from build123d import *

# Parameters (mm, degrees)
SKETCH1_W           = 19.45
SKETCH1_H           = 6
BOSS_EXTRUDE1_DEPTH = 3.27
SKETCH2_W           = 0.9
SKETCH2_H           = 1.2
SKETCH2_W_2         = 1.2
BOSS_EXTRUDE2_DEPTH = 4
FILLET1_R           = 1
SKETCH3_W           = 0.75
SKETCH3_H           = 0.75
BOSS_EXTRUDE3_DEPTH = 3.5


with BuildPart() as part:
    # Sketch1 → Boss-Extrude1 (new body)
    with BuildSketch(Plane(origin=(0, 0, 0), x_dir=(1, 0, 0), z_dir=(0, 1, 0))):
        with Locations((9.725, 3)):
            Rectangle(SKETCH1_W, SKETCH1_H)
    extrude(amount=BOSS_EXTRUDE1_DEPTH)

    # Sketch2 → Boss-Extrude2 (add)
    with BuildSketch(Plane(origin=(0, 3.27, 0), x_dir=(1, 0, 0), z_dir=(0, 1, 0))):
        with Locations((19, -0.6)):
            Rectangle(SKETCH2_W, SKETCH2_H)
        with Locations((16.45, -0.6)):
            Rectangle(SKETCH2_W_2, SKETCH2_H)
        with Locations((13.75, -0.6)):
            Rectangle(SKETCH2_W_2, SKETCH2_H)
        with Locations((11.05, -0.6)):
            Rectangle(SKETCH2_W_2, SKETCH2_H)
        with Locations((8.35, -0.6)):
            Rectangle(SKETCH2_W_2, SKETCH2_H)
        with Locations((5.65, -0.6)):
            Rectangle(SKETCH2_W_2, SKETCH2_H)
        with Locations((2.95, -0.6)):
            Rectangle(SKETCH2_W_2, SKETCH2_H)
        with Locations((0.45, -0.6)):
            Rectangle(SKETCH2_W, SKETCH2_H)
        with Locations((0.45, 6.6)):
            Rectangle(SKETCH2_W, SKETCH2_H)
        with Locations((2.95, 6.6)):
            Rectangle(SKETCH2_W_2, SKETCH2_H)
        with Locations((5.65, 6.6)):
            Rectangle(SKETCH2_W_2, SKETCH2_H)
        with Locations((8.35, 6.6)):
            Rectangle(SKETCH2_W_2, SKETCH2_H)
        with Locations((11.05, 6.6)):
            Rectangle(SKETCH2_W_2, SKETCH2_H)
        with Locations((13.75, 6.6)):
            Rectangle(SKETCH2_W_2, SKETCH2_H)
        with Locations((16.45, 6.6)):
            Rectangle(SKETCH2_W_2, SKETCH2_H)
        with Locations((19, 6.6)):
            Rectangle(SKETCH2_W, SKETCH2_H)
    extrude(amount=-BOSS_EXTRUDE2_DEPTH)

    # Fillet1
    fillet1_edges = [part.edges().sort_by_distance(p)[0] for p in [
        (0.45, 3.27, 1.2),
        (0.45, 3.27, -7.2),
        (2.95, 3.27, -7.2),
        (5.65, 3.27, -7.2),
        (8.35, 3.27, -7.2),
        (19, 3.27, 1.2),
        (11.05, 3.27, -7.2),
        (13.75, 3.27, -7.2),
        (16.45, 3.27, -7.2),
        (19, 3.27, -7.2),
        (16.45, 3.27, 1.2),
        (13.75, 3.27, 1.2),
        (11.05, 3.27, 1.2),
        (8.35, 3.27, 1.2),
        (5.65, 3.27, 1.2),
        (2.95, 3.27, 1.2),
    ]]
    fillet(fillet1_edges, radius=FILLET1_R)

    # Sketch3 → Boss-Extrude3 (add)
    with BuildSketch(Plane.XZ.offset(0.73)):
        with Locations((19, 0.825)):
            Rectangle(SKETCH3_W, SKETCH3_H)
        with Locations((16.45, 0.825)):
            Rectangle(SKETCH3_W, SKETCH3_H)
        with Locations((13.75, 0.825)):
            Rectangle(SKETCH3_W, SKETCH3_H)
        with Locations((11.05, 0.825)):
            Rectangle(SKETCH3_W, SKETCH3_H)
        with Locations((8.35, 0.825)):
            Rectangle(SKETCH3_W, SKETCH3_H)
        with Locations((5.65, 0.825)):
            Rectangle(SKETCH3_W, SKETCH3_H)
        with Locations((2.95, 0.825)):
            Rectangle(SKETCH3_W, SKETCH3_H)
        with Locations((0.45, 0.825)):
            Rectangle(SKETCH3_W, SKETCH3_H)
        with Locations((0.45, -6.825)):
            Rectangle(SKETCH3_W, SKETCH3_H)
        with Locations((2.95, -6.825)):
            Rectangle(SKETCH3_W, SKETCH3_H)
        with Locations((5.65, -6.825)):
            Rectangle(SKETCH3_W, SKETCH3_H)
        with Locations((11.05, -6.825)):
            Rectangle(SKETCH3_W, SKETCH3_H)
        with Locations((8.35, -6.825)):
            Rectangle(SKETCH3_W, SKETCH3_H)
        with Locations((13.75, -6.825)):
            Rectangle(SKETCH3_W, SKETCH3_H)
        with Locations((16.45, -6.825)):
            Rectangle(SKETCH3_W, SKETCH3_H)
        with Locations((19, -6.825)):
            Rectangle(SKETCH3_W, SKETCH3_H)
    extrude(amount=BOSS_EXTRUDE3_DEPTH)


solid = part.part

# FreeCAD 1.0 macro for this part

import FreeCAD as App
import Part
import Sketcher

V = App.Vector
Q = App.Units.Quantity


def edges_at(feature, points):
    """Names of the edges that pass closest to the given points."""
    edges = feature.Shape.Edges
    near = lambda p: min(range(len(edges)), key=lambda i: edges[i].distToShape(Part.Vertex(*p))[0])
    return sorted({f"Edge{near(p) + 1}" for p in points})

doc = App.newDocument("Part")
body = doc.addObject("PartDesign::Body", "Body")

# Sketch on XZ plane
sketch1 = doc.addObject("Sketcher::SketchObject", "Sketch")
body.addObject(sketch1)
sketch1.AttachmentSupport = (doc.XZ_Plane, [""])
sketch1.MapMode = "FlatFace"
sketch1.addGeometry([
    Part.LineSegment(V(0, -6, 0), V(0, 0, 0)),
    Part.LineSegment(V(0, 0, 0), V(19.45, 0, 0)),
    Part.LineSegment(V(19.45, 0, 0), V(19.45, -6, 0)),
    Part.LineSegment(V(19.45, -6, 0), V(0, -6, 0)),
], False)
sketch1.addConstraint([
    Sketcher.Constraint("Coincident", 0, 2, 1, 1),
    Sketcher.Constraint("Coincident", 1, 2, 2, 1),
    Sketcher.Constraint("Coincident", 2, 2, 3, 1),
    Sketcher.Constraint("Coincident", 3, 2, 0, 1),
    Sketcher.Constraint("Vertical", 0),
    Sketcher.Constraint("Horizontal", 1),
    Sketcher.Constraint("Vertical", 2),
    Sketcher.Constraint("Horizontal", 3),
    Sketcher.Constraint("Coincident", 0, 2, -1, 1),
    Sketcher.Constraint("DistanceY", 0, 1, 0, 2, Q("6 mm")),
    Sketcher.Constraint("DistanceX", 1, 1, 1, 2, Q("19.45 mm")),
])
pad1 = doc.addObject("PartDesign::Pad", "Pad")
body.addObject(pad1)
pad1.Profile = sketch1
pad1.Length = 3.27
pad1.Reversed = True

# Sketch on XZ plane
sketch2 = doc.addObject("Sketcher::SketchObject", "Sketch001")
body.addObject(sketch2)
sketch2.AttachmentSupport = (doc.XZ_Plane, [""])
sketch2.MapMode = "FlatFace"
sketch2.AttachmentOffset = App.Placement(V(0, 0, -3.27), App.Rotation())
sketch2.addGeometry([
    Part.LineSegment(V(18.55, 0, 0), V(18.55, 1.2, 0)),  # 0
    Part.LineSegment(V(18.55, 1.2, 0), V(19.45, 1.2, 0)),  # 1
    Part.LineSegment(V(19.45, 1.2, 0), V(19.45, 0, 0)),  # 2
    Part.LineSegment(V(19.45, 0, 0), V(18.55, 0, 0)),  # 3
    Part.LineSegment(V(15.85, 0, 0), V(15.85, 1.2, 0)),  # 4
    Part.LineSegment(V(15.85, 1.2, 0), V(17.05, 1.2, 0)),  # 5
    Part.LineSegment(V(17.05, 1.2, 0), V(17.05, 0, 0)),  # 6
    Part.LineSegment(V(17.05, 0, 0), V(15.85, 0, 0)),  # 7
    Part.LineSegment(V(13.15, 0, 0), V(13.15, 1.2, 0)),  # 8
    Part.LineSegment(V(13.15, 1.2, 0), V(14.35, 1.2, 0)),  # 9
    Part.LineSegment(V(14.35, 1.2, 0), V(14.35, 0, 0)),  # 10
    Part.LineSegment(V(14.35, 0, 0), V(13.15, 0, 0)),  # 11
    Part.LineSegment(V(10.45, 0, 0), V(10.45, 1.2, 0)),  # 12
    Part.LineSegment(V(10.45, 1.2, 0), V(11.65, 1.2, 0)),  # 13
    Part.LineSegment(V(11.65, 1.2, 0), V(11.65, 0, 0)),  # 14
    Part.LineSegment(V(11.65, 0, 0), V(10.45, 0, 0)),  # 15
    Part.LineSegment(V(7.75, 0, 0), V(7.75, 1.2, 0)),  # 16
    Part.LineSegment(V(7.75, 1.2, 0), V(8.95, 1.2, 0)),  # 17
    Part.LineSegment(V(8.95, 1.2, 0), V(8.95, 0, 0)),  # 18
    Part.LineSegment(V(8.95, 0, 0), V(7.75, 0, 0)),  # 19
    Part.LineSegment(V(5.05, 0, 0), V(5.05, 1.2, 0)),  # 20
    Part.LineSegment(V(5.05, 1.2, 0), V(6.25, 1.2, 0)),  # 21
    Part.LineSegment(V(6.25, 1.2, 0), V(6.25, 0, 0)),  # 22
    Part.LineSegment(V(6.25, 0, 0), V(5.05, 0, 0)),  # 23
    Part.LineSegment(V(2.35, 0, 0), V(2.35, 1.2, 0)),  # 24
    Part.LineSegment(V(2.35, 1.2, 0), V(3.55, 1.2, 0)),  # 25
    Part.LineSegment(V(3.55, 1.2, 0), V(3.55, 0, 0)),  # 26
    Part.LineSegment(V(3.55, 0, 0), V(2.35, 0, 0)),  # 27
    Part.LineSegment(V(0, 0, 0), V(0, 1.2, 0)),  # 28
    Part.LineSegment(V(0, 1.2, 0), V(0.9, 1.2, 0)),  # 29
    Part.LineSegment(V(0.9, 1.2, 0), V(0.9, 0, 0)),  # 30
    Part.LineSegment(V(0.9, 0, 0), V(0, 0, 0)),  # 31
    Part.LineSegment(V(0, -7.2, 0), V(0, -6, 0)),  # 32
    Part.LineSegment(V(0, -6, 0), V(0.9, -6, 0)),  # 33
    Part.LineSegment(V(0.9, -6, 0), V(0.9, -7.2, 0)),  # 34
    Part.LineSegment(V(0.9, -7.2, 0), V(0, -7.2, 0)),  # 35
    Part.LineSegment(V(2.35, -7.2, 0), V(2.35, -6, 0)),  # 36
    Part.LineSegment(V(2.35, -6, 0), V(3.55, -6, 0)),  # 37
    Part.LineSegment(V(3.55, -6, 0), V(3.55, -7.2, 0)),  # 38
    Part.LineSegment(V(3.55, -7.2, 0), V(2.35, -7.2, 0)),  # 39
    Part.LineSegment(V(5.05, -7.2, 0), V(5.05, -6, 0)),  # 40
    Part.LineSegment(V(5.05, -6, 0), V(6.25, -6, 0)),  # 41
    Part.LineSegment(V(6.25, -6, 0), V(6.25, -7.2, 0)),  # 42
    Part.LineSegment(V(6.25, -7.2, 0), V(5.05, -7.2, 0)),  # 43
    Part.LineSegment(V(7.75, -7.2, 0), V(7.75, -6, 0)),  # 44
    Part.LineSegment(V(7.75, -6, 0), V(8.95, -6, 0)),  # 45
    Part.LineSegment(V(8.95, -6, 0), V(8.95, -7.2, 0)),  # 46
    Part.LineSegment(V(8.95, -7.2, 0), V(7.75, -7.2, 0)),  # 47
    Part.LineSegment(V(10.45, -7.2, 0), V(10.45, -6, 0)),  # 48
    Part.LineSegment(V(10.45, -6, 0), V(11.65, -6, 0)),  # 49
    Part.LineSegment(V(11.65, -6, 0), V(11.65, -7.2, 0)),  # 50
    Part.LineSegment(V(11.65, -7.2, 0), V(10.45, -7.2, 0)),  # 51
    Part.LineSegment(V(13.15, -7.2, 0), V(13.15, -6, 0)),  # 52
    Part.LineSegment(V(13.15, -6, 0), V(14.35, -6, 0)),  # 53
    Part.LineSegment(V(14.35, -6, 0), V(14.35, -7.2, 0)),  # 54
    Part.LineSegment(V(14.35, -7.2, 0), V(13.15, -7.2, 0)),  # 55
    Part.LineSegment(V(15.85, -7.2, 0), V(15.85, -6, 0)),  # 56
    Part.LineSegment(V(15.85, -6, 0), V(17.05, -6, 0)),  # 57
    Part.LineSegment(V(17.05, -6, 0), V(17.05, -7.2, 0)),  # 58
    Part.LineSegment(V(17.05, -7.2, 0), V(15.85, -7.2, 0)),  # 59
    Part.LineSegment(V(18.55, -7.2, 0), V(18.55, -6, 0)),  # 60
    Part.LineSegment(V(18.55, -6, 0), V(19.45, -6, 0)),  # 61
    Part.LineSegment(V(19.45, -6, 0), V(19.45, -7.2, 0)),  # 62
    Part.LineSegment(V(19.45, -7.2, 0), V(18.55, -7.2, 0)),  # 63
], False)
sketch2.addConstraint([
    Sketcher.Constraint("Coincident", 0, 2, 1, 1),
    Sketcher.Constraint("Coincident", 1, 2, 2, 1),
    Sketcher.Constraint("Coincident", 2, 2, 3, 1),
    Sketcher.Constraint("Coincident", 3, 2, 0, 1),
    Sketcher.Constraint("Coincident", 4, 2, 5, 1),
    Sketcher.Constraint("Coincident", 5, 2, 6, 1),
    Sketcher.Constraint("Coincident", 6, 2, 7, 1),
    Sketcher.Constraint("Coincident", 7, 2, 4, 1),
    Sketcher.Constraint("Coincident", 8, 2, 9, 1),
    Sketcher.Constraint("Coincident", 9, 2, 10, 1),
    Sketcher.Constraint("Coincident", 10, 2, 11, 1),
    Sketcher.Constraint("Coincident", 11, 2, 8, 1),
    Sketcher.Constraint("Coincident", 12, 2, 13, 1),
    Sketcher.Constraint("Coincident", 13, 2, 14, 1),
    Sketcher.Constraint("Coincident", 14, 2, 15, 1),
    Sketcher.Constraint("Coincident", 15, 2, 12, 1),
    Sketcher.Constraint("Coincident", 16, 2, 17, 1),
    Sketcher.Constraint("Coincident", 17, 2, 18, 1),
    Sketcher.Constraint("Coincident", 18, 2, 19, 1),
    Sketcher.Constraint("Coincident", 19, 2, 16, 1),
    Sketcher.Constraint("Coincident", 20, 2, 21, 1),
    Sketcher.Constraint("Coincident", 21, 2, 22, 1),
    Sketcher.Constraint("Coincident", 22, 2, 23, 1),
    Sketcher.Constraint("Coincident", 23, 2, 20, 1),
    Sketcher.Constraint("Coincident", 24, 2, 25, 1),
    Sketcher.Constraint("Coincident", 25, 2, 26, 1),
    Sketcher.Constraint("Coincident", 26, 2, 27, 1),
    Sketcher.Constraint("Coincident", 27, 2, 24, 1),
    Sketcher.Constraint("Coincident", 28, 2, 29, 1),
    Sketcher.Constraint("Coincident", 29, 2, 30, 1),
    Sketcher.Constraint("Coincident", 30, 2, 31, 1),
    Sketcher.Constraint("Coincident", 31, 2, 28, 1),
    Sketcher.Constraint("Coincident", 32, 2, 33, 1),
    Sketcher.Constraint("Coincident", 33, 2, 34, 1),
    Sketcher.Constraint("Coincident", 34, 2, 35, 1),
    Sketcher.Constraint("Coincident", 35, 2, 32, 1),
    Sketcher.Constraint("Coincident", 36, 2, 37, 1),
    Sketcher.Constraint("Coincident", 37, 2, 38, 1),
    Sketcher.Constraint("Coincident", 38, 2, 39, 1),
    Sketcher.Constraint("Coincident", 39, 2, 36, 1),
    Sketcher.Constraint("Coincident", 40, 2, 41, 1),
    Sketcher.Constraint("Coincident", 41, 2, 42, 1),
    Sketcher.Constraint("Coincident", 42, 2, 43, 1),
    Sketcher.Constraint("Coincident", 43, 2, 40, 1),
    Sketcher.Constraint("Coincident", 44, 2, 45, 1),
    Sketcher.Constraint("Coincident", 45, 2, 46, 1),
    Sketcher.Constraint("Coincident", 46, 2, 47, 1),
    Sketcher.Constraint("Coincident", 47, 2, 44, 1),
    Sketcher.Constraint("Coincident", 48, 2, 49, 1),
    Sketcher.Constraint("Coincident", 49, 2, 50, 1),
    Sketcher.Constraint("Coincident", 50, 2, 51, 1),
    Sketcher.Constraint("Coincident", 51, 2, 48, 1),
    Sketcher.Constraint("Coincident", 52, 2, 53, 1),
    Sketcher.Constraint("Coincident", 53, 2, 54, 1),
    Sketcher.Constraint("Coincident", 54, 2, 55, 1),
    Sketcher.Constraint("Coincident", 55, 2, 52, 1),
    Sketcher.Constraint("Coincident", 56, 2, 57, 1),
    Sketcher.Constraint("Coincident", 57, 2, 58, 1),
    Sketcher.Constraint("Coincident", 58, 2, 59, 1),
    Sketcher.Constraint("Coincident", 59, 2, 56, 1),
    Sketcher.Constraint("Coincident", 60, 2, 61, 1),
    Sketcher.Constraint("Coincident", 61, 2, 62, 1),
    Sketcher.Constraint("Coincident", 62, 2, 63, 1),
    Sketcher.Constraint("Coincident", 63, 2, 60, 1),
    Sketcher.Constraint("Vertical", 0),
    Sketcher.Constraint("Horizontal", 1),
    Sketcher.Constraint("Vertical", 2),
    Sketcher.Constraint("Horizontal", 3),
    Sketcher.Constraint("Vertical", 4),
    Sketcher.Constraint("Horizontal", 5),
    Sketcher.Constraint("Vertical", 6),
    Sketcher.Constraint("Horizontal", 7),
    Sketcher.Constraint("Vertical", 8),
    Sketcher.Constraint("Horizontal", 9),
    Sketcher.Constraint("Vertical", 10),
    Sketcher.Constraint("Horizontal", 11),
    Sketcher.Constraint("Vertical", 12),
    Sketcher.Constraint("Horizontal", 13),
    Sketcher.Constraint("Vertical", 14),
    Sketcher.Constraint("Horizontal", 15),
    Sketcher.Constraint("Vertical", 16),
    Sketcher.Constraint("Horizontal", 17),
    Sketcher.Constraint("Vertical", 18),
    Sketcher.Constraint("Horizontal", 19),
    Sketcher.Constraint("Vertical", 20),
    Sketcher.Constraint("Horizontal", 21),
    Sketcher.Constraint("Vertical", 22),
    Sketcher.Constraint("Horizontal", 23),
    Sketcher.Constraint("Vertical", 24),
    Sketcher.Constraint("Horizontal", 25),
    Sketcher.Constraint("Vertical", 26),
    Sketcher.Constraint("Horizontal", 27),
    Sketcher.Constraint("Vertical", 28),
    Sketcher.Constraint("Horizontal", 29),
    Sketcher.Constraint("Vertical", 30),
    Sketcher.Constraint("Horizontal", 31),
    Sketcher.Constraint("Vertical", 32),
    Sketcher.Constraint("Horizontal", 33),
    Sketcher.Constraint("Vertical", 34),
    Sketcher.Constraint("Horizontal", 35),
    Sketcher.Constraint("Vertical", 36),
    Sketcher.Constraint("Horizontal", 37),
    Sketcher.Constraint("Vertical", 38),
    Sketcher.Constraint("Horizontal", 39),
    Sketcher.Constraint("Vertical", 40),
    Sketcher.Constraint("Horizontal", 41),
    Sketcher.Constraint("Vertical", 42),
    Sketcher.Constraint("Horizontal", 43),
    Sketcher.Constraint("Vertical", 44),
    Sketcher.Constraint("Horizontal", 45),
    Sketcher.Constraint("Vertical", 46),
    Sketcher.Constraint("Horizontal", 47),
    Sketcher.Constraint("Vertical", 48),
    Sketcher.Constraint("Horizontal", 49),
    Sketcher.Constraint("Vertical", 50),
    Sketcher.Constraint("Horizontal", 51),
    Sketcher.Constraint("Vertical", 52),
    Sketcher.Constraint("Horizontal", 53),
    Sketcher.Constraint("Vertical", 54),
    Sketcher.Constraint("Horizontal", 55),
    Sketcher.Constraint("Vertical", 56),
    Sketcher.Constraint("Horizontal", 57),
    Sketcher.Constraint("Vertical", 58),
    Sketcher.Constraint("Horizontal", 59),
    Sketcher.Constraint("Vertical", 60),
    Sketcher.Constraint("Horizontal", 61),
    Sketcher.Constraint("Vertical", 62),
    Sketcher.Constraint("Horizontal", 63),
    Sketcher.Constraint("Coincident", 31, 2, -1, 1),
    Sketcher.Constraint("PointOnObject", 2, 2, -1),
    Sketcher.Constraint("PointOnObject", 6, 2, -1),
    Sketcher.Constraint("PointOnObject", 10, 2, -1),
    Sketcher.Constraint("PointOnObject", 14, 2, -1),
    Sketcher.Constraint("PointOnObject", 18, 2, -1),
    Sketcher.Constraint("PointOnObject", 22, 2, -1),
    Sketcher.Constraint("PointOnObject", 26, 2, -1),
    Sketcher.Constraint("PointOnObject", 32, 2, -2),
    Sketcher.Constraint("Horizontal", 1, 2, 4, 2),
    Sketcher.Constraint("Horizontal", 5, 2, 8, 2),
    Sketcher.Constraint("Horizontal", 9, 2, 12, 2),
    Sketcher.Constraint("Horizontal", 13, 2, 16, 2),
    Sketcher.Constraint("Horizontal", 17, 2, 20, 2),
    Sketcher.Constraint("Horizontal", 21, 2, 24, 2),
    Sketcher.Constraint("Horizontal", 25, 2, 28, 2),
    Sketcher.Constraint("Horizontal", 33, 2, 36, 2),
    Sketcher.Constraint("Horizontal", 35, 2, 38, 2),
    Sketcher.Constraint("Horizontal", 37, 2, 40, 2),
    Sketcher.Constraint("Horizontal", 39, 2, 42, 2),
    Sketcher.Constraint("Horizontal", 41, 2, 44, 2),
    Sketcher.Constraint("Horizontal", 43, 2, 46, 2),
    Sketcher.Constraint("Horizontal", 45, 2, 48, 2),
    Sketcher.Constraint("Horizontal", 47, 2, 50, 2),
    Sketcher.Constraint("Horizontal", 49, 2, 52, 2),
    Sketcher.Constraint("Horizontal", 51, 2, 54, 2),
    Sketcher.Constraint("Horizontal", 53, 2, 56, 2),
    Sketcher.Constraint("Horizontal", 55, 2, 58, 2),
    Sketcher.Constraint("Horizontal", 57, 2, 60, 2),
    Sketcher.Constraint("Horizontal", 59, 2, 62, 2),
    Sketcher.Constraint("Vertical", 30, 2, 33, 2),
    Sketcher.Constraint("Vertical", 27, 2, 36, 2),
    Sketcher.Constraint("Vertical", 26, 2, 37, 2),
    Sketcher.Constraint("Vertical", 23, 2, 40, 2),
    Sketcher.Constraint("Vertical", 22, 2, 41, 2),
    Sketcher.Constraint("Vertical", 19, 2, 44, 2),
    Sketcher.Constraint("Vertical", 18, 2, 45, 2),
    Sketcher.Constraint("Vertical", 15, 2, 48, 2),
    Sketcher.Constraint("Vertical", 14, 2, 49, 2),
    Sketcher.Constraint("Vertical", 11, 2, 52, 2),
    Sketcher.Constraint("Vertical", 10, 2, 53, 2),
    Sketcher.Constraint("Vertical", 7, 2, 56, 2),
    Sketcher.Constraint("Vertical", 6, 2, 57, 2),
    Sketcher.Constraint("Vertical", 3, 2, 60, 2),
    Sketcher.Constraint("Vertical", 2, 2, 61, 2),
    Sketcher.Constraint("Equal", 7, 9),
    Sketcher.Constraint("Equal", 11, 13),
    Sketcher.Constraint("Equal", 15, 17),
    Sketcher.Constraint("Equal", 19, 21),
    Sketcher.Constraint("Equal", 23, 25),
    Sketcher.Constraint("Equal", 3, 29),
    Sketcher.Constraint("Equal", 59, 0),
    Sketcher.Constraint("Equal", 30, 32),
    Sketcher.Constraint("DistanceX", 1, 1, 1, 2, Q("0.9 mm")),
    Sketcher.Constraint("DistanceX", 5, 1, 5, 2, Q("1.2 mm")),
    Sketcher.Constraint("DistanceY", 32, 2, -1, 1, Q("6 mm")),
    Sketcher.Constraint("DistanceX", -1, 1, 0, 2, Q("18.55 mm")),
    Sketcher.Constraint("DistanceX", -1, 1, 4, 2, Q("15.85 mm")),
    Sketcher.Constraint("DistanceX", -1, 1, 8, 2, Q("13.15 mm")),
    Sketcher.Constraint("DistanceX", -1, 1, 12, 2, Q("10.45 mm")),
    Sketcher.Constraint("DistanceX", -1, 1, 16, 2, Q("7.75 mm")),
    Sketcher.Constraint("DistanceX", -1, 1, 20, 2, Q("5.05 mm")),
    Sketcher.Constraint("DistanceX", -1, 1, 24, 2, Q("2.35 mm")),
])
pad2 = doc.addObject("PartDesign::Pad", "Pad001")
body.addObject(pad2)
pad2.Profile = sketch2
pad2.Length = 4
doc.recompute()

fillet = doc.addObject("PartDesign::Fillet", "Fillet")
body.addObject(fillet)
fillet.Base = (pad2, edges_at(pad2, [
    (0.45, 3.27, 1.2),
    (0.45, 3.27, -7.2),
    (2.95, 3.27, -7.2),
    (5.65, 3.27, -7.2),
    (8.35, 3.27, -7.2),
    (19, 3.27, 1.2),
    (11.05, 3.27, -7.2),
    (13.75, 3.27, -7.2),
    (16.45, 3.27, -7.2),
    (19, 3.27, -7.2),
    (16.45, 3.27, 1.2),
    (13.75, 3.27, 1.2),
    (11.05, 3.27, 1.2),
    (8.35, 3.27, 1.2),
    (5.65, 3.27, 1.2),
    (2.95, 3.27, 1.2),
]))
fillet.Radius = 1

# Sketch on XZ plane
sketch3 = doc.addObject("Sketcher::SketchObject", "Sketch002")
body.addObject(sketch3)
sketch3.AttachmentSupport = (doc.XZ_Plane, [""])
sketch3.MapMode = "FlatFace"
sketch3.AttachmentOffset = App.Placement(V(0, 0, 0.73), App.Rotation())
sketch3.addGeometry([
    Part.LineSegment(V(18.625, 1.2, 0), V(18.625, 0.45, 0)),  # 0
    Part.LineSegment(V(18.625, 0.45, 0), V(19.375, 0.45, 0)),  # 1
    Part.LineSegment(V(19.375, 0.45, 0), V(19.375, 1.2, 0)),  # 2
    Part.LineSegment(V(19.375, 1.2, 0), V(18.625, 1.2, 0)),  # 3
    Part.LineSegment(V(16.075, 1.2, 0), V(16.075, 0.45, 0)),  # 4
    Part.LineSegment(V(16.075, 0.45, 0), V(16.825, 0.45, 0)),  # 5
    Part.LineSegment(V(16.825, 0.45, 0), V(16.825, 1.2, 0)),  # 6
    Part.LineSegment(V(16.825, 1.2, 0), V(16.075, 1.2, 0)),  # 7
    Part.LineSegment(V(13.375, 1.2, 0), V(13.375, 0.45, 0)),  # 8
    Part.LineSegment(V(13.375, 0.45, 0), V(14.125, 0.45, 0)),  # 9
    Part.LineSegment(V(14.125, 0.45, 0), V(14.125, 1.2, 0)),  # 10
    Part.LineSegment(V(14.125, 1.2, 0), V(13.375, 1.2, 0)),  # 11
    Part.LineSegment(V(10.675, 1.2, 0), V(10.675, 0.45, 0)),  # 12
    Part.LineSegment(V(10.675, 0.45, 0), V(11.425, 0.45, 0)),  # 13
    Part.LineSegment(V(11.425, 0.45, 0), V(11.425, 1.2, 0)),  # 14
    Part.LineSegment(V(11.425, 1.2, 0), V(10.675, 1.2, 0)),  # 15
    Part.LineSegment(V(7.975, 1.2, 0), V(7.975, 0.45, 0)),  # 16
    Part.LineSegment(V(7.975, 0.45, 0), V(8.725, 0.45, 0)),  # 17
    Part.LineSegment(V(8.725, 0.45, 0), V(8.725, 1.2, 0)),  # 18
    Part.LineSegment(V(8.725, 1.2, 0), V(7.975, 1.2, 0)),  # 19
    Part.LineSegment(V(5.275, 1.2, 0), V(5.275, 0.45, 0)),  # 20
    Part.LineSegment(V(5.275, 0.45, 0), V(6.025, 0.45, 0)),  # 21
    Part.LineSegment(V(6.025, 0.45, 0), V(6.025, 1.2, 0)),  # 22
    Part.LineSegment(V(6.025, 1.2, 0), V(5.275, 1.2, 0)),  # 23
    Part.LineSegment(V(2.575, 1.2, 0), V(2.575, 0.45, 0)),  # 24
    Part.LineSegment(V(2.575, 0.45, 0), V(3.325, 0.45, 0)),  # 25
    Part.LineSegment(V(3.325, 0.45, 0), V(3.325, 1.2, 0)),  # 26
    Part.LineSegment(V(3.325, 1.2, 0), V(2.575, 1.2, 0)),  # 27
    Part.LineSegment(V(0.075, 1.2, 0), V(0.075, 0.45, 0)),  # 28
    Part.LineSegment(V(0.075, 0.45, 0), V(0.825, 0.45, 0)),  # 29
    Part.LineSegment(V(0.825, 0.45, 0), V(0.825, 1.2, 0)),  # 30
    Part.LineSegment(V(0.825, 1.2, 0), V(0.075, 1.2, 0)),  # 31
    Part.LineSegment(V(0.075, -6.45, 0), V(0.075, -7.2, 0)),  # 32
    Part.LineSegment(V(0.075, -7.2, 0), V(0.825, -7.2, 0)),  # 33
    Part.LineSegment(V(0.825, -7.2, 0), V(0.825, -6.45, 0)),  # 34
    Part.LineSegment(V(0.825, -6.45, 0), V(0.075, -6.45, 0)),  # 35
    Part.LineSegment(V(2.575, -6.45, 0), V(2.575, -7.2, 0)),  # 36
    Part.LineSegment(V(2.575, -7.2, 0), V(3.325, -7.2, 0)),  # 37
    Part.LineSegment(V(3.325, -7.2, 0), V(3.325, -6.45, 0)),  # 38
    Part.LineSegment(V(3.325, -6.45, 0), V(2.575, -6.45, 0)),  # 39
    Part.LineSegment(V(5.275, -6.45, 0), V(5.275, -7.2, 0)),  # 40
    Part.LineSegment(V(5.275, -7.2, 0), V(6.025, -7.2, 0)),  # 41
    Part.LineSegment(V(6.025, -7.2, 0), V(6.025, -6.45, 0)),  # 42
    Part.LineSegment(V(6.025, -6.45, 0), V(5.275, -6.45, 0)),  # 43
    Part.LineSegment(V(10.675, -6.45, 0), V(10.675, -7.2, 0)),  # 44
    Part.LineSegment(V(10.675, -7.2, 0), V(11.425, -7.2, 0)),  # 45
    Part.LineSegment(V(11.425, -7.2, 0), V(11.425, -6.45, 0)),  # 46
    Part.LineSegment(V(11.425, -6.45, 0), V(10.675, -6.45, 0)),  # 47
    Part.LineSegment(V(7.975, -6.45, 0), V(7.975, -7.2, 0)),  # 48
    Part.LineSegment(V(7.975, -7.2, 0), V(8.725, -7.2, 0)),  # 49
    Part.LineSegment(V(8.725, -7.2, 0), V(8.725, -6.45, 0)),  # 50
    Part.LineSegment(V(8.725, -6.45, 0), V(7.975, -6.45, 0)),  # 51
    Part.LineSegment(V(13.375, -6.45, 0), V(13.375, -7.2, 0)),  # 52
    Part.LineSegment(V(13.375, -7.2, 0), V(14.125, -7.2, 0)),  # 53
    Part.LineSegment(V(14.125, -7.2, 0), V(14.125, -6.45, 0)),  # 54
    Part.LineSegment(V(14.125, -6.45, 0), V(13.375, -6.45, 0)),  # 55
    Part.LineSegment(V(16.075, -6.45, 0), V(16.075, -7.2, 0)),  # 56
    Part.LineSegment(V(16.075, -7.2, 0), V(16.825, -7.2, 0)),  # 57
    Part.LineSegment(V(16.825, -7.2, 0), V(16.825, -6.45, 0)),  # 58
    Part.LineSegment(V(16.825, -6.45, 0), V(16.075, -6.45, 0)),  # 59
    Part.LineSegment(V(18.625, -6.45, 0), V(18.625, -7.2, 0)),  # 60
    Part.LineSegment(V(18.625, -7.2, 0), V(19.375, -7.2, 0)),  # 61
    Part.LineSegment(V(19.375, -7.2, 0), V(19.375, -6.45, 0)),  # 62
    Part.LineSegment(V(19.375, -6.45, 0), V(18.625, -6.45, 0)),  # 63
], False)
sketch3.addConstraint([
    Sketcher.Constraint("Coincident", 0, 2, 1, 1),
    Sketcher.Constraint("Coincident", 1, 2, 2, 1),
    Sketcher.Constraint("Coincident", 2, 2, 3, 1),
    Sketcher.Constraint("Coincident", 3, 2, 0, 1),
    Sketcher.Constraint("Coincident", 4, 2, 5, 1),
    Sketcher.Constraint("Coincident", 5, 2, 6, 1),
    Sketcher.Constraint("Coincident", 6, 2, 7, 1),
    Sketcher.Constraint("Coincident", 7, 2, 4, 1),
    Sketcher.Constraint("Coincident", 8, 2, 9, 1),
    Sketcher.Constraint("Coincident", 9, 2, 10, 1),
    Sketcher.Constraint("Coincident", 10, 2, 11, 1),
    Sketcher.Constraint("Coincident", 11, 2, 8, 1),
    Sketcher.Constraint("Coincident", 12, 2, 13, 1),
    Sketcher.Constraint("Coincident", 13, 2, 14, 1),
    Sketcher.Constraint("Coincident", 14, 2, 15, 1),
    Sketcher.Constraint("Coincident", 15, 2, 12, 1),
    Sketcher.Constraint("Coincident", 16, 2, 17, 1),
    Sketcher.Constraint("Coincident", 17, 2, 18, 1),
    Sketcher.Constraint("Coincident", 18, 2, 19, 1),
    Sketcher.Constraint("Coincident", 19, 2, 16, 1),
    Sketcher.Constraint("Coincident", 20, 2, 21, 1),
    Sketcher.Constraint("Coincident", 21, 2, 22, 1),
    Sketcher.Constraint("Coincident", 22, 2, 23, 1),
    Sketcher.Constraint("Coincident", 23, 2, 20, 1),
    Sketcher.Constraint("Coincident", 24, 2, 25, 1),
    Sketcher.Constraint("Coincident", 25, 2, 26, 1),
    Sketcher.Constraint("Coincident", 26, 2, 27, 1),
    Sketcher.Constraint("Coincident", 27, 2, 24, 1),
    Sketcher.Constraint("Coincident", 28, 2, 29, 1),
    Sketcher.Constraint("Coincident", 29, 2, 30, 1),
    Sketcher.Constraint("Coincident", 30, 2, 31, 1),
    Sketcher.Constraint("Coincident", 31, 2, 28, 1),
    Sketcher.Constraint("Coincident", 32, 2, 33, 1),
    Sketcher.Constraint("Coincident", 33, 2, 34, 1),
    Sketcher.Constraint("Coincident", 34, 2, 35, 1),
    Sketcher.Constraint("Coincident", 35, 2, 32, 1),
    Sketcher.Constraint("Coincident", 36, 2, 37, 1),
    Sketcher.Constraint("Coincident", 37, 2, 38, 1),
    Sketcher.Constraint("Coincident", 38, 2, 39, 1),
    Sketcher.Constraint("Coincident", 39, 2, 36, 1),
    Sketcher.Constraint("Coincident", 40, 2, 41, 1),
    Sketcher.Constraint("Coincident", 41, 2, 42, 1),
    Sketcher.Constraint("Coincident", 42, 2, 43, 1),
    Sketcher.Constraint("Coincident", 43, 2, 40, 1),
    Sketcher.Constraint("Coincident", 44, 2, 45, 1),
    Sketcher.Constraint("Coincident", 45, 2, 46, 1),
    Sketcher.Constraint("Coincident", 46, 2, 47, 1),
    Sketcher.Constraint("Coincident", 47, 2, 44, 1),
    Sketcher.Constraint("Coincident", 48, 2, 49, 1),
    Sketcher.Constraint("Coincident", 49, 2, 50, 1),
    Sketcher.Constraint("Coincident", 50, 2, 51, 1),
    Sketcher.Constraint("Coincident", 51, 2, 48, 1),
    Sketcher.Constraint("Coincident", 52, 2, 53, 1),
    Sketcher.Constraint("Coincident", 53, 2, 54, 1),
    Sketcher.Constraint("Coincident", 54, 2, 55, 1),
    Sketcher.Constraint("Coincident", 55, 2, 52, 1),
    Sketcher.Constraint("Coincident", 56, 2, 57, 1),
    Sketcher.Constraint("Coincident", 57, 2, 58, 1),
    Sketcher.Constraint("Coincident", 58, 2, 59, 1),
    Sketcher.Constraint("Coincident", 59, 2, 56, 1),
    Sketcher.Constraint("Coincident", 60, 2, 61, 1),
    Sketcher.Constraint("Coincident", 61, 2, 62, 1),
    Sketcher.Constraint("Coincident", 62, 2, 63, 1),
    Sketcher.Constraint("Coincident", 63, 2, 60, 1),
    Sketcher.Constraint("Vertical", 0),
    Sketcher.Constraint("Horizontal", 1),
    Sketcher.Constraint("Vertical", 2),
    Sketcher.Constraint("Horizontal", 3),
    Sketcher.Constraint("Vertical", 4),
    Sketcher.Constraint("Horizontal", 5),
    Sketcher.Constraint("Vertical", 6),
    Sketcher.Constraint("Horizontal", 7),
    Sketcher.Constraint("Vertical", 8),
    Sketcher.Constraint("Horizontal", 9),
    Sketcher.Constraint("Vertical", 10),
    Sketcher.Constraint("Horizontal", 11),
    Sketcher.Constraint("Vertical", 12),
    Sketcher.Constraint("Horizontal", 13),
    Sketcher.Constraint("Vertical", 14),
    Sketcher.Constraint("Horizontal", 15),
    Sketcher.Constraint("Vertical", 16),
    Sketcher.Constraint("Horizontal", 17),
    Sketcher.Constraint("Vertical", 18),
    Sketcher.Constraint("Horizontal", 19),
    Sketcher.Constraint("Vertical", 20),
    Sketcher.Constraint("Horizontal", 21),
    Sketcher.Constraint("Vertical", 22),
    Sketcher.Constraint("Horizontal", 23),
    Sketcher.Constraint("Vertical", 24),
    Sketcher.Constraint("Horizontal", 25),
    Sketcher.Constraint("Vertical", 26),
    Sketcher.Constraint("Horizontal", 27),
    Sketcher.Constraint("Vertical", 28),
    Sketcher.Constraint("Horizontal", 29),
    Sketcher.Constraint("Vertical", 30),
    Sketcher.Constraint("Horizontal", 31),
    Sketcher.Constraint("Vertical", 32),
    Sketcher.Constraint("Horizontal", 33),
    Sketcher.Constraint("Vertical", 34),
    Sketcher.Constraint("Horizontal", 35),
    Sketcher.Constraint("Vertical", 36),
    Sketcher.Constraint("Horizontal", 37),
    Sketcher.Constraint("Vertical", 38),
    Sketcher.Constraint("Horizontal", 39),
    Sketcher.Constraint("Vertical", 40),
    Sketcher.Constraint("Horizontal", 41),
    Sketcher.Constraint("Vertical", 42),
    Sketcher.Constraint("Horizontal", 43),
    Sketcher.Constraint("Vertical", 44),
    Sketcher.Constraint("Horizontal", 45),
    Sketcher.Constraint("Vertical", 46),
    Sketcher.Constraint("Horizontal", 47),
    Sketcher.Constraint("Vertical", 48),
    Sketcher.Constraint("Horizontal", 49),
    Sketcher.Constraint("Vertical", 50),
    Sketcher.Constraint("Horizontal", 51),
    Sketcher.Constraint("Vertical", 52),
    Sketcher.Constraint("Horizontal", 53),
    Sketcher.Constraint("Vertical", 54),
    Sketcher.Constraint("Horizontal", 55),
    Sketcher.Constraint("Vertical", 56),
    Sketcher.Constraint("Horizontal", 57),
    Sketcher.Constraint("Vertical", 58),
    Sketcher.Constraint("Horizontal", 59),
    Sketcher.Constraint("Vertical", 60),
    Sketcher.Constraint("Horizontal", 61),
    Sketcher.Constraint("Vertical", 62),
    Sketcher.Constraint("Horizontal", 63),
    Sketcher.Constraint("Horizontal", 1, 2, 4, 2),
    Sketcher.Constraint("Horizontal", 3, 2, 6, 2),
    Sketcher.Constraint("Horizontal", 5, 2, 8, 2),
    Sketcher.Constraint("Horizontal", 7, 2, 10, 2),
    Sketcher.Constraint("Horizontal", 9, 2, 12, 2),
    Sketcher.Constraint("Horizontal", 11, 2, 14, 2),
    Sketcher.Constraint("Horizontal", 13, 2, 16, 2),
    Sketcher.Constraint("Horizontal", 15, 2, 18, 2),
    Sketcher.Constraint("Horizontal", 17, 2, 20, 2),
    Sketcher.Constraint("Horizontal", 19, 2, 22, 2),
    Sketcher.Constraint("Horizontal", 21, 2, 24, 2),
    Sketcher.Constraint("Horizontal", 23, 2, 26, 2),
    Sketcher.Constraint("Horizontal", 25, 2, 28, 2),
    Sketcher.Constraint("Horizontal", 27, 2, 30, 2),
    Sketcher.Constraint("Horizontal", 33, 2, 36, 2),
    Sketcher.Constraint("Horizontal", 35, 2, 38, 2),
    Sketcher.Constraint("Horizontal", 37, 2, 40, 2),
    Sketcher.Constraint("Horizontal", 39, 2, 42, 2),
    Sketcher.Constraint("Horizontal", 41, 2, 44, 2),
    Sketcher.Constraint("Horizontal", 43, 2, 46, 2),
    Sketcher.Constraint("Horizontal", 45, 2, 48, 2),
    Sketcher.Constraint("Horizontal", 47, 2, 50, 2),
    Sketcher.Constraint("Horizontal", 49, 2, 52, 2),
    Sketcher.Constraint("Horizontal", 51, 2, 54, 2),
    Sketcher.Constraint("Horizontal", 53, 2, 56, 2),
    Sketcher.Constraint("Horizontal", 55, 2, 58, 2),
    Sketcher.Constraint("Horizontal", 57, 2, 60, 2),
    Sketcher.Constraint("Horizontal", 59, 2, 62, 2),
    Sketcher.Constraint("Vertical", 31, 2, 32, 2),
    Sketcher.Constraint("Vertical", 30, 2, 33, 2),
    Sketcher.Constraint("Vertical", 27, 2, 36, 2),
    Sketcher.Constraint("Vertical", 26, 2, 37, 2),
    Sketcher.Constraint("Vertical", 23, 2, 40, 2),
    Sketcher.Constraint("Vertical", 22, 2, 41, 2),
    Sketcher.Constraint("Vertical", 15, 2, 44, 2),
    Sketcher.Constraint("Vertical", 14, 2, 45, 2),
    Sketcher.Constraint("Vertical", 19, 2, 48, 2),
    Sketcher.Constraint("Vertical", 18, 2, 49, 2),
    Sketcher.Constraint("Vertical", 11, 2, 52, 2),
    Sketcher.Constraint("Vertical", 10, 2, 53, 2),
    Sketcher.Constraint("Vertical", 7, 2, 56, 2),
    Sketcher.Constraint("Vertical", 6, 2, 57, 2),
    Sketcher.Constraint("Vertical", 3, 2, 60, 2),
    Sketcher.Constraint("Vertical", 2, 2, 61, 2),
    Sketcher.Constraint("Equal", 3, 5),
    Sketcher.Constraint("Equal", 7, 9),
    Sketcher.Constraint("Equal", 11, 13),
    Sketcher.Constraint("Equal", 15, 17),
    Sketcher.Constraint("Equal", 19, 21),
    Sketcher.Constraint("Equal", 23, 25),
    Sketcher.Constraint("Equal", 27, 29),
    Sketcher.Constraint("Equal", 63, 0),
    Sketcher.Constraint("Equal", 30, 32),
    Sketcher.Constraint("DistanceX", 1, 1, 1, 2, Q("0.75 mm")),
    Sketcher.Constraint("DistanceY", -1, 1, 2, 2, Q("1.2 mm")),
    Sketcher.Constraint("DistanceY", 32, 2, -1, 1, Q("7.2 mm")),
    Sketcher.Constraint("DistanceX", -1, 1, 0, 2, Q("18.625 mm")),
    Sketcher.Constraint("DistanceX", -1, 1, 4, 2, Q("16.075 mm")),
    Sketcher.Constraint("DistanceX", -1, 1, 8, 2, Q("13.375 mm")),
    Sketcher.Constraint("DistanceX", -1, 1, 12, 2, Q("10.675 mm")),
    Sketcher.Constraint("DistanceX", -1, 1, 16, 2, Q("7.975 mm")),
    Sketcher.Constraint("DistanceX", -1, 1, 20, 2, Q("5.275 mm")),
    Sketcher.Constraint("DistanceX", -1, 1, 24, 2, Q("2.575 mm")),
    Sketcher.Constraint("DistanceX", -1, 1, 28, 2, Q("0.075 mm")),
])
pad3 = doc.addObject("PartDesign::Pad", "Pad002")
body.addObject(pad3)
pad3.Profile = sketch3
pad3.Length = 3.5

doc.recompute()
